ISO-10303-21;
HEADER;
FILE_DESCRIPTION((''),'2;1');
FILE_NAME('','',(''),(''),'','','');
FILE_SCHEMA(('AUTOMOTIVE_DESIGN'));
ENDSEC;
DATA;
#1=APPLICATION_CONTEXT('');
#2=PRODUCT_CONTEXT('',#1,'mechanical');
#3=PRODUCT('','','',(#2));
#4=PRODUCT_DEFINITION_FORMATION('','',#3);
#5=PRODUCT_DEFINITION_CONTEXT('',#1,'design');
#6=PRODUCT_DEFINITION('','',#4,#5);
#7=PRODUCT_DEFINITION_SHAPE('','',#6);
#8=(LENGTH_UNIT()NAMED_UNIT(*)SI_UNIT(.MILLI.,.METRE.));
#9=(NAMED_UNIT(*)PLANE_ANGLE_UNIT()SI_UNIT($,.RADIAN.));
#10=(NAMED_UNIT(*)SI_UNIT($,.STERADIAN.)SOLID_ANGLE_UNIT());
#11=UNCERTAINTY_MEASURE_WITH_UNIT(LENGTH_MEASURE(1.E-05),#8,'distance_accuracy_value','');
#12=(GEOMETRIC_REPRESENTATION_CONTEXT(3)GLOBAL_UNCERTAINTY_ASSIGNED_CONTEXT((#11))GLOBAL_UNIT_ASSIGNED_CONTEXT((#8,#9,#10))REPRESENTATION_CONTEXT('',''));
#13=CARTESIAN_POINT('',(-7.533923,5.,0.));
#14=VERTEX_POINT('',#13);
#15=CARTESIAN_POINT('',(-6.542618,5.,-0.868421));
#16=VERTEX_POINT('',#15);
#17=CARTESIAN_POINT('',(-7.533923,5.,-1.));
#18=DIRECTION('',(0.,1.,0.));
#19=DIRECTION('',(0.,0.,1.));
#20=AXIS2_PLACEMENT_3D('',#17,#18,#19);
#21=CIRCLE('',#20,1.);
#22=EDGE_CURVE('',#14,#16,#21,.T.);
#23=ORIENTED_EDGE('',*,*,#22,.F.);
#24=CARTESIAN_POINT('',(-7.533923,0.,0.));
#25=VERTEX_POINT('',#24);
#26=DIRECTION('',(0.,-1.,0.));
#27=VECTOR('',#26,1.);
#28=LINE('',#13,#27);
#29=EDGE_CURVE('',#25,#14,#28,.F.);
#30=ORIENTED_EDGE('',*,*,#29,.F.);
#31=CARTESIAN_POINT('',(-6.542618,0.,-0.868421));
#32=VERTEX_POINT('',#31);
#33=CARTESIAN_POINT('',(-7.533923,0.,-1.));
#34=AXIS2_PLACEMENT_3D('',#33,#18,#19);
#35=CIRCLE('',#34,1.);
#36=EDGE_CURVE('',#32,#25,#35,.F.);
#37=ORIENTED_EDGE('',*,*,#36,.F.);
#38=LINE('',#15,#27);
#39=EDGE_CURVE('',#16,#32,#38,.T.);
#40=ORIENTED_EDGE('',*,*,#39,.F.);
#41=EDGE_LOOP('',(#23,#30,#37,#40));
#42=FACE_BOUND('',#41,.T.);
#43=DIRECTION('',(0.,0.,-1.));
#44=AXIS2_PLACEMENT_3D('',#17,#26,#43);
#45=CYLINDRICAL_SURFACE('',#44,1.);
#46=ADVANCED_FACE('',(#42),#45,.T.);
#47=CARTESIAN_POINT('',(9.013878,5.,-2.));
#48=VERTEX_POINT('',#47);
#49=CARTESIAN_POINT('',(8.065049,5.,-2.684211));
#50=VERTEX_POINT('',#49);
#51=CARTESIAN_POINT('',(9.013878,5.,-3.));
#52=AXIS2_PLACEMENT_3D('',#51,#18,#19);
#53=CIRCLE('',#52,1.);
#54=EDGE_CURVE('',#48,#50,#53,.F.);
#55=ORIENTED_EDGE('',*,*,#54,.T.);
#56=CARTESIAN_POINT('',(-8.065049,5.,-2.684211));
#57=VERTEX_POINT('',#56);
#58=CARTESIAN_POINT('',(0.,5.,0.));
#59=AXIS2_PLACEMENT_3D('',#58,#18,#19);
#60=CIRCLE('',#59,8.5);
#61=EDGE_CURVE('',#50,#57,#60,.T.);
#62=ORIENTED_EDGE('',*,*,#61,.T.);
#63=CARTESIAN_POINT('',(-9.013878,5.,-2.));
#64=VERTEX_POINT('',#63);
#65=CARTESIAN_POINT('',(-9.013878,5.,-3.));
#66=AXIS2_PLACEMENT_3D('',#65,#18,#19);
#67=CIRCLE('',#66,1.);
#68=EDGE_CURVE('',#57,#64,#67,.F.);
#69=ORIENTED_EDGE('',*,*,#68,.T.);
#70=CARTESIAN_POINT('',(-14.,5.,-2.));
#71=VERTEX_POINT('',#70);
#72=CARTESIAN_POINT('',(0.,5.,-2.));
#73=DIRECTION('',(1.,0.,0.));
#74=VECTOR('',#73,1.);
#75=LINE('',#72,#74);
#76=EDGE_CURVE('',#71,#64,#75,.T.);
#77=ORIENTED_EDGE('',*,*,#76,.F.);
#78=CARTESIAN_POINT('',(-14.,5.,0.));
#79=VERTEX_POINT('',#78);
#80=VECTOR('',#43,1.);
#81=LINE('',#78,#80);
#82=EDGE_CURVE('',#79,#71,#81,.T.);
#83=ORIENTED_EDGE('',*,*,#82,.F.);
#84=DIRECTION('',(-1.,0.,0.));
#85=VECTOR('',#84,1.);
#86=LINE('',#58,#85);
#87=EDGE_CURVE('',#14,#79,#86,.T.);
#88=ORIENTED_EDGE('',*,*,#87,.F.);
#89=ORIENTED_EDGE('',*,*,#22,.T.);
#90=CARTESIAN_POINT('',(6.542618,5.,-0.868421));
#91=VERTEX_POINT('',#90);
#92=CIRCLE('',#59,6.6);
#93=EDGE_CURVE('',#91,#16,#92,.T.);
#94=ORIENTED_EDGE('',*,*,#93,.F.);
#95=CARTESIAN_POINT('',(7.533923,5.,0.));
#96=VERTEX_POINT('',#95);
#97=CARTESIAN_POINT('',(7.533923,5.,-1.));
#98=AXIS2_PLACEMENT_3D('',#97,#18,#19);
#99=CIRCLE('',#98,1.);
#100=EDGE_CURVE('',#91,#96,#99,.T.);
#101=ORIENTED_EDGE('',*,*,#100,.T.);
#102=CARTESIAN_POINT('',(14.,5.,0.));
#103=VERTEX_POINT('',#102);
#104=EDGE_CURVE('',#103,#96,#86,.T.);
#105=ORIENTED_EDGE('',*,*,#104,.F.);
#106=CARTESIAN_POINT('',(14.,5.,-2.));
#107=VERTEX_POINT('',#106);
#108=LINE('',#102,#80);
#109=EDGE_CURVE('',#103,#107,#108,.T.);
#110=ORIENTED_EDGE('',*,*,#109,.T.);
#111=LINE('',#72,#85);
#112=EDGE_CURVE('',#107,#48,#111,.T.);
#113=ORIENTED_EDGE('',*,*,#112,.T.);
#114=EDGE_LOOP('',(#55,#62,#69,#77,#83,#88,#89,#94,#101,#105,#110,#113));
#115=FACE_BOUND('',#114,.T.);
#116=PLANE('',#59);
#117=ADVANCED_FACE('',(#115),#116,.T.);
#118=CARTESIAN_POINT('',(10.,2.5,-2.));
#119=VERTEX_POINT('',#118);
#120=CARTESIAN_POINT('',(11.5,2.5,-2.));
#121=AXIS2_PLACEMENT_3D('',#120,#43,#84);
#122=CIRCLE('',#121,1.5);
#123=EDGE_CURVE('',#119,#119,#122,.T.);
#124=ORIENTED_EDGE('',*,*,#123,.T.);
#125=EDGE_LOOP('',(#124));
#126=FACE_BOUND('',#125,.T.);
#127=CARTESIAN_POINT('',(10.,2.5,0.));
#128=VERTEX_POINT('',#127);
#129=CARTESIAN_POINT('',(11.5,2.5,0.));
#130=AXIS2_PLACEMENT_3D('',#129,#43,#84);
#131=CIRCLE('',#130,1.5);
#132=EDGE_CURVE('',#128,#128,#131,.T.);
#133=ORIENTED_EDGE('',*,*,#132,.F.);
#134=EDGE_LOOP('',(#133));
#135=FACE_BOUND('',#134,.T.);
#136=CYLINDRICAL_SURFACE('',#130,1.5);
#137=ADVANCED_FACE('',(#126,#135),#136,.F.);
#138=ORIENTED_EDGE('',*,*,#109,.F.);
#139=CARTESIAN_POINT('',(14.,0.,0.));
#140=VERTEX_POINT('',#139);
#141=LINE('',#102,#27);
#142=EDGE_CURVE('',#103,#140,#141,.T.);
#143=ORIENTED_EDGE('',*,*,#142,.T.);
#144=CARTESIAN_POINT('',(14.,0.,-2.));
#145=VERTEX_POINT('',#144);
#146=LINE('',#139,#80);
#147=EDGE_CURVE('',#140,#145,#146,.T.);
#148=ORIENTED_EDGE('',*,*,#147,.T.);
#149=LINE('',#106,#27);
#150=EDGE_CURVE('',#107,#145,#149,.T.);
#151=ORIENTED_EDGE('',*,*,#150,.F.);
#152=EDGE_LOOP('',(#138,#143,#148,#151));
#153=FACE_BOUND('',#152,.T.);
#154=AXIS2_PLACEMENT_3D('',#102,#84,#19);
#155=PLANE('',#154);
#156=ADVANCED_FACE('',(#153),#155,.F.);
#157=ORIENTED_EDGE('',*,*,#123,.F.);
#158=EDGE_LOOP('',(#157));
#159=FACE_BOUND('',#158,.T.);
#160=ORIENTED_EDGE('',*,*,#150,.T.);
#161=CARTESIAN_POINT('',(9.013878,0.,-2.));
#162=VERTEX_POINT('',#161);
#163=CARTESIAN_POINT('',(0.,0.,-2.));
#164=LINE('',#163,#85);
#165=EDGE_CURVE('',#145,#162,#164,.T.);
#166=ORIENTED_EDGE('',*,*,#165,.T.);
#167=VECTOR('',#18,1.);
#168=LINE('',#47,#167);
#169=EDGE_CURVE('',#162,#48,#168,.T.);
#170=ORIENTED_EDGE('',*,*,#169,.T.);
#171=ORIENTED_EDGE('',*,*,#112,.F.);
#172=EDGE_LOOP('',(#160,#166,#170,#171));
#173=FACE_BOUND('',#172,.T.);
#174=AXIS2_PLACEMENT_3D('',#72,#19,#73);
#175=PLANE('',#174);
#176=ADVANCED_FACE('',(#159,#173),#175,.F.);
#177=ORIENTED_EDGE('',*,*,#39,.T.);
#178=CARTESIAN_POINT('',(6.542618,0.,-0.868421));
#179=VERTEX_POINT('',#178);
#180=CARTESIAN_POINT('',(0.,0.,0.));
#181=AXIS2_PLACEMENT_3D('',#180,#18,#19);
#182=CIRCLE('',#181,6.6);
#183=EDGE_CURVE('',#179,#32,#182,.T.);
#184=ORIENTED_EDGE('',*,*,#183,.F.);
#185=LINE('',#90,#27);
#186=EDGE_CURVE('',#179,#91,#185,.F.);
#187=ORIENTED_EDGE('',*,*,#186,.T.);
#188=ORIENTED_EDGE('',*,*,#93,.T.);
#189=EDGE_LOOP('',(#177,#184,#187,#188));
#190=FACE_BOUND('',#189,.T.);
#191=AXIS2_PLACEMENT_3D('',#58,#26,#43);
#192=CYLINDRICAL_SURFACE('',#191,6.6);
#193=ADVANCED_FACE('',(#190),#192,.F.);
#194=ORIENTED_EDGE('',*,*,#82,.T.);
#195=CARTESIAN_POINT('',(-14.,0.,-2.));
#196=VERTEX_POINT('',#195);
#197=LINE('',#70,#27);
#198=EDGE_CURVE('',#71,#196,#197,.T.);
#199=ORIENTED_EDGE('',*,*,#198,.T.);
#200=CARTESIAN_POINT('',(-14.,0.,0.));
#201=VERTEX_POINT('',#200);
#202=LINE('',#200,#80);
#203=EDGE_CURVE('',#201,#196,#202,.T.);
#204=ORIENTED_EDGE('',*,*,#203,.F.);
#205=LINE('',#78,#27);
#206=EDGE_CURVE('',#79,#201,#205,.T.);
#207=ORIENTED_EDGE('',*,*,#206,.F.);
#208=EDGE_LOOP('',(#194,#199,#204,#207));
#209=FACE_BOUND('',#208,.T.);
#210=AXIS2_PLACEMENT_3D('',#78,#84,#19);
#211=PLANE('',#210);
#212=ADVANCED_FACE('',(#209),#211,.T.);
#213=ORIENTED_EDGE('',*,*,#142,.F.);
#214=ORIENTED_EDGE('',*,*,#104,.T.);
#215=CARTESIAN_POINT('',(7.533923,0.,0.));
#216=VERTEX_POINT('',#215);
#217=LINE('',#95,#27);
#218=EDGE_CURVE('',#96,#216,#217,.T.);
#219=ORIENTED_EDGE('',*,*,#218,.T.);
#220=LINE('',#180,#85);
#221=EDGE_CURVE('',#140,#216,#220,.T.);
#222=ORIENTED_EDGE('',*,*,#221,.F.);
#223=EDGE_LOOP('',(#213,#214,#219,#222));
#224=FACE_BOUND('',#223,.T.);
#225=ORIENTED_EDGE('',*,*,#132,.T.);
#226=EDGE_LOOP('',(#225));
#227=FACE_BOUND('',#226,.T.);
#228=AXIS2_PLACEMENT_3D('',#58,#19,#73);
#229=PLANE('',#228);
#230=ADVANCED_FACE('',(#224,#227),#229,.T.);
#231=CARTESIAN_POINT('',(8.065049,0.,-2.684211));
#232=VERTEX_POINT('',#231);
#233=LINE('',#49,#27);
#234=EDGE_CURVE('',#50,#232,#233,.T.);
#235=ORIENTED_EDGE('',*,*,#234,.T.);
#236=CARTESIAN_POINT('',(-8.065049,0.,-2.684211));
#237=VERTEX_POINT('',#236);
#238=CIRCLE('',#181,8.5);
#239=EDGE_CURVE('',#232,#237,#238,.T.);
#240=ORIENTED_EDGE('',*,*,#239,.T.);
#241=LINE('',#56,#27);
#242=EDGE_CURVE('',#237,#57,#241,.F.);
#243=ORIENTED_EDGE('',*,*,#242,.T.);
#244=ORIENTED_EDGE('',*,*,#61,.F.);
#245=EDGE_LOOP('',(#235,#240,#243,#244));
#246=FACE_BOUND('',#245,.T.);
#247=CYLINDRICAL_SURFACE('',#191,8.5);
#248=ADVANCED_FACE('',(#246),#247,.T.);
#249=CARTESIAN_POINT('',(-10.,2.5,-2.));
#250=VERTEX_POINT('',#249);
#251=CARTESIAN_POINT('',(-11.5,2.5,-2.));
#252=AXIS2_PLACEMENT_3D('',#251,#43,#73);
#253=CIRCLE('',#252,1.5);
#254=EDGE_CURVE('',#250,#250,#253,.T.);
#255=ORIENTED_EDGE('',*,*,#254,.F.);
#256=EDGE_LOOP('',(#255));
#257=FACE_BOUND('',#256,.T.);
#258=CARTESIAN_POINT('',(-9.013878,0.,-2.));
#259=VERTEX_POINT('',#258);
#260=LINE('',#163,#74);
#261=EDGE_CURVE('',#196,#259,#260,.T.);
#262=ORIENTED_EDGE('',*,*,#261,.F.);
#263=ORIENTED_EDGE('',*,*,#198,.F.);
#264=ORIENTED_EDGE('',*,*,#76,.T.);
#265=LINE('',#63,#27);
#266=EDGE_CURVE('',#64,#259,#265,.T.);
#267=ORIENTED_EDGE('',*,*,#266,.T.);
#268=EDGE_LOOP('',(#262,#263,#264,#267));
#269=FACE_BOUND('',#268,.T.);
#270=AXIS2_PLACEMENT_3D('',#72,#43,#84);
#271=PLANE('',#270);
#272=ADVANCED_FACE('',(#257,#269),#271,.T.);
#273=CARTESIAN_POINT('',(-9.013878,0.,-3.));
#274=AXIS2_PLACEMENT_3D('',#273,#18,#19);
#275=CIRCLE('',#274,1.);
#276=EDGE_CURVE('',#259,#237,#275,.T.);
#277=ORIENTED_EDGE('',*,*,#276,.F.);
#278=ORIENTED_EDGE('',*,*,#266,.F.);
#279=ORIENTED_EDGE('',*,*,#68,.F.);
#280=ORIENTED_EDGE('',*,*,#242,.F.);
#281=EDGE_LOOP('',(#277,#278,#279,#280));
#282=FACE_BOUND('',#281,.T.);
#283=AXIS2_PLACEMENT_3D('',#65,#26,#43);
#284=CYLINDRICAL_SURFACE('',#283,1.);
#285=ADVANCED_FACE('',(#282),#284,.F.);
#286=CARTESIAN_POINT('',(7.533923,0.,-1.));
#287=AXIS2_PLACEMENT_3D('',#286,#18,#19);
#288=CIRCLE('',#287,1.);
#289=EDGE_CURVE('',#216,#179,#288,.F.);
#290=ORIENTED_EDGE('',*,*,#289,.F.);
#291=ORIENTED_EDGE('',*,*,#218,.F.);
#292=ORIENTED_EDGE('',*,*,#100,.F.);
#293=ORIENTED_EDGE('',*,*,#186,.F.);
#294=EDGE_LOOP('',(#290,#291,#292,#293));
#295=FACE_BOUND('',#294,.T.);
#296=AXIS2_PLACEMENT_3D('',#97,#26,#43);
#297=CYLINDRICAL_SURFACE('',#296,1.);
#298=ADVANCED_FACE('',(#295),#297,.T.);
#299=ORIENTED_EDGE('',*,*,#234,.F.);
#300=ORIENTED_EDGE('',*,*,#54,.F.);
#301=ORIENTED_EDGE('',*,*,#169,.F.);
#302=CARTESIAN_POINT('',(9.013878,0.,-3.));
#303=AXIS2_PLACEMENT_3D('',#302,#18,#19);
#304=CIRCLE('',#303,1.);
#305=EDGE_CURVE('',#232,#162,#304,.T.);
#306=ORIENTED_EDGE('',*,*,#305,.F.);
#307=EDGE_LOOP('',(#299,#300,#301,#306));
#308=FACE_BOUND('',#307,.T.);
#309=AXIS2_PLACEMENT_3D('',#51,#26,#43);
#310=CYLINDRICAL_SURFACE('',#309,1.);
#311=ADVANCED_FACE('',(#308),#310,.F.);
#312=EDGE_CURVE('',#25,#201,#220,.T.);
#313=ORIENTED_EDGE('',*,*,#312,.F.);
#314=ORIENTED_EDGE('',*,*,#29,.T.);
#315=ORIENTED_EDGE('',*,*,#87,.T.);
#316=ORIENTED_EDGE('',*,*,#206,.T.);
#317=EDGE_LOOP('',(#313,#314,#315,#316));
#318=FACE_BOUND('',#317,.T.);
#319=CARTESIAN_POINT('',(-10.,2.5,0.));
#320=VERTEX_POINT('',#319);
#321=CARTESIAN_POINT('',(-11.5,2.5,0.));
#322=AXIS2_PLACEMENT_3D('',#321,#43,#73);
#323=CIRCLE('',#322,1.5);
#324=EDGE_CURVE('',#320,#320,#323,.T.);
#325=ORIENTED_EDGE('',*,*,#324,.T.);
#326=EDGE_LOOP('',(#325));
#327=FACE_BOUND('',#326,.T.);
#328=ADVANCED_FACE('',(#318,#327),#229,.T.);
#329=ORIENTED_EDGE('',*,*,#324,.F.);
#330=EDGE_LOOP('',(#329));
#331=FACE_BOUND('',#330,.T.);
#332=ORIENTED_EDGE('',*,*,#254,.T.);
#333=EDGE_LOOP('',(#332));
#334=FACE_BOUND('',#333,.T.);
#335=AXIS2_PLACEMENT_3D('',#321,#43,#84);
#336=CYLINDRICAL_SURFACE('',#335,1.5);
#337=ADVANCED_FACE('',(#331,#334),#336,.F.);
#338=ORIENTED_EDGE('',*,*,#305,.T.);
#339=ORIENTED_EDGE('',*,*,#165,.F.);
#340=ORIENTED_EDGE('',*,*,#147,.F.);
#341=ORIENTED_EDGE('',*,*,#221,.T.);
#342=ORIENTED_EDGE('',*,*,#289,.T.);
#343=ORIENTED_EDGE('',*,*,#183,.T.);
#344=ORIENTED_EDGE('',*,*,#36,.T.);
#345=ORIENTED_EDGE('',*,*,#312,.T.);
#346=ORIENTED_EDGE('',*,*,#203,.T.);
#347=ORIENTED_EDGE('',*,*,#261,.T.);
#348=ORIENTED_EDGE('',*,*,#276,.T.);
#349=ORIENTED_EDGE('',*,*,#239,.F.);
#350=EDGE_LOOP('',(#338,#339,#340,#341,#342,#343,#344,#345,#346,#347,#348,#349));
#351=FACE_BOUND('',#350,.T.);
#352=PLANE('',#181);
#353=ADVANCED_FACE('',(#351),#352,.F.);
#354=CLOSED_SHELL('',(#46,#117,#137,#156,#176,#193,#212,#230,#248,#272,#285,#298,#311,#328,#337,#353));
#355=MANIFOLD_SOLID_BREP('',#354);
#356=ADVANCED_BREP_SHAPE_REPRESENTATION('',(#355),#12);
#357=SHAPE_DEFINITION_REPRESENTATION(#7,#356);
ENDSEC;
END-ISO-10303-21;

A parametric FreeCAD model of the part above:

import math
import FreeCAD as App
import Part
import Sketcher
Q = App.Units.Quantity


def edges_at(feature, points):
    """Names of the edges that pass closest to the given points."""
    edges = feature.Shape.Edges
    near = lambda p: min(range(len(edges)), key=lambda i: edges[i].distToShape(Part.Vertex(*p))[0])
    return sorted({f"Edge{near(p) + 1}" for p in points})

doc = App.newDocument("Part")
body = doc.addObject("PartDesign::Body", "Body")

# Sketch on XZ plane
sketch1 = body.newObject("Sketcher::SketchObject", "Sketch")
sketch1.AttachmentSupport = (doc.getObject("XZ_Plane"), [""])
sketch1.MapMode = "FlatFace"
sketch1.addGeometry([
    Part.LineSegment(App.Vector(-14, 0, 0), App.Vector(-6.6, 0, 0)),  # 0
    Part.ArcOfCircle(Part.Circle(App.Vector(0, 0, 0), App.Vector(0, 0, 1), 6.6), math.radians(180), math.radians(270)),  # 1
    Part.ArcOfCircle(Part.Circle(App.Vector(0, 0, 0), App.Vector(0, 0, 1), 6.6), math.radians(-90), math.radians(0)),  # 2
    Part.LineSegment(App.Vector(6.6, 0, 0), App.Vector(14, 0, 0)),  # 3
    Part.LineSegment(App.Vector(14, 0, 0), App.Vector(14, -2, 0)),  # 4
    Part.LineSegment(App.Vector(14, -2, 0), App.Vector(8.3, -2, 0)),  # 5
    Part.ArcOfCircle(Part.Circle(App.Vector(0, 0, 0), App.Vector(0, 0, 1), 8.5), math.radians(-90), math.radians(-14)),  # 6
    Part.ArcOfCircle(Part.Circle(App.Vector(0, 0, 0), App.Vector(0, 0, 1), 8.5), math.radians(-166), math.radians(-90)),  # 7
    Part.LineSegment(App.Vector(-8.3, -2, 0), App.Vector(-14, -2, 0)),  # 8
    Part.LineSegment(App.Vector(-14, -2, 0), App.Vector(-14, 0, 0)),  # 9
], False)
sketch1.addConstraint([
    Sketcher.Constraint("Coincident", 0, 2, 1, 1),
    Sketcher.Constraint("Tangent", 1, 2, 2, 1),
    Sketcher.Constraint("Coincident", 2, 2, 3, 1),
    Sketcher.Constraint("Coincident", 3, 2, 4, 1),
    Sketcher.Constraint("Coincident", 4, 2, 5, 1),
    Sketcher.Constraint("Coincident", 5, 2, 6, 2),
    Sketcher.Constraint("Tangent", 6, 1, 7, 2),
    Sketcher.Constraint("Coincident", 7, 1, 8, 1),
    Sketcher.Constraint("Coincident", 8, 2, 9, 1),
    Sketcher.Constraint("Coincident", 9, 2, 0, 1),
    Sketcher.Constraint("Horizontal", 0),
    Sketcher.Constraint("Horizontal", 3),
    Sketcher.Constraint("Vertical", 4),
    Sketcher.Constraint("Horizontal", 5),
    Sketcher.Constraint("Horizontal", 8),
    Sketcher.Constraint("Vertical", 9),
    Sketcher.Constraint("Coincident", 1, 3, -1, 1),
    Sketcher.Constraint("Coincident", 6, 3, -1, 1),
    Sketcher.Constraint("Equal", 1, 2),
    Sketcher.Constraint("Equal", 6, 7),
    Sketcher.Constraint("Symmetric", 3, 2, 9, 2, -1, 1),
    Sketcher.Constraint("PointOnObject", 0, 2, -1),
    Sketcher.Constraint("PointOnObject", 1, 2, -2),
    Sketcher.Constraint("PointOnObject", 6, 1, -2),
    Sketcher.Constraint("Horizontal", 5, 2, 7, 1),
    Sketcher.Constraint("Radius", 1, Q("6.6 mm")),
    Sketcher.Constraint("Radius", 6, Q("8.5 mm")),
    Sketcher.Constraint("DistanceY", 4, 2, 4, 1, Q("2 mm")),
    Sketcher.Constraint("DistanceX", 0, 1, 0, 2, Q("7.4 mm")),
])
pad1 = body.newObject("PartDesign::Pad", "Pad")
pad1.Profile = sketch1
pad1.Length = 5
pad1.Reversed = True

# Sketch on XY plane
sketch2 = body.newObject("Sketcher::SketchObject", "Sketch001")
sketch2.AttachmentSupport = (doc.getObject("XY_Plane"), [""])
sketch2.MapMode = "FlatFace"
sketch2.AttachmentOffset = App.Placement(App.Vector(0, 0, -2), App.Rotation())
sketch2.addGeometry([
    Part.Circle(App.Vector(11.5, 2.5, 0), App.Vector(0, 0, 1), 1.5),
    Part.Circle(App.Vector(-11.5, 2.5, 0), App.Vector(0, 0, 1), 1.5),
], False)
sketch2.addConstraint([
    Sketcher.Constraint("Equal", 0, 1),
    Sketcher.Constraint("Symmetric", 0, 3, 1, 3, -2),
    Sketcher.Constraint("Diameter", 0, Q("3 mm")),
    Sketcher.Constraint("DistanceX", 1, 3, 0, 3, Q("23 mm")),
    Sketcher.Constraint("DistanceY", -1, 1, 0, 3, Q("2.5 mm")),
])
pocket1 = body.newObject("PartDesign::Pocket", "Pocket")
pocket1.Profile = sketch2
pocket1.Type = "ThroughAll"
pocket1.Reversed = True
doc.recompute()

fillet = body.newObject("PartDesign::Fillet", "Fillet")
fillet.Base = (pocket1, edges_at(pocket1, [
    (-6.6, 2.5, 0),
    (-8.261, 2.5, -2),
    (8.261, 2.5, -2),
    (6.6, 2.5, 0),
]))
fillet.Radius = 1

doc.recompute()
